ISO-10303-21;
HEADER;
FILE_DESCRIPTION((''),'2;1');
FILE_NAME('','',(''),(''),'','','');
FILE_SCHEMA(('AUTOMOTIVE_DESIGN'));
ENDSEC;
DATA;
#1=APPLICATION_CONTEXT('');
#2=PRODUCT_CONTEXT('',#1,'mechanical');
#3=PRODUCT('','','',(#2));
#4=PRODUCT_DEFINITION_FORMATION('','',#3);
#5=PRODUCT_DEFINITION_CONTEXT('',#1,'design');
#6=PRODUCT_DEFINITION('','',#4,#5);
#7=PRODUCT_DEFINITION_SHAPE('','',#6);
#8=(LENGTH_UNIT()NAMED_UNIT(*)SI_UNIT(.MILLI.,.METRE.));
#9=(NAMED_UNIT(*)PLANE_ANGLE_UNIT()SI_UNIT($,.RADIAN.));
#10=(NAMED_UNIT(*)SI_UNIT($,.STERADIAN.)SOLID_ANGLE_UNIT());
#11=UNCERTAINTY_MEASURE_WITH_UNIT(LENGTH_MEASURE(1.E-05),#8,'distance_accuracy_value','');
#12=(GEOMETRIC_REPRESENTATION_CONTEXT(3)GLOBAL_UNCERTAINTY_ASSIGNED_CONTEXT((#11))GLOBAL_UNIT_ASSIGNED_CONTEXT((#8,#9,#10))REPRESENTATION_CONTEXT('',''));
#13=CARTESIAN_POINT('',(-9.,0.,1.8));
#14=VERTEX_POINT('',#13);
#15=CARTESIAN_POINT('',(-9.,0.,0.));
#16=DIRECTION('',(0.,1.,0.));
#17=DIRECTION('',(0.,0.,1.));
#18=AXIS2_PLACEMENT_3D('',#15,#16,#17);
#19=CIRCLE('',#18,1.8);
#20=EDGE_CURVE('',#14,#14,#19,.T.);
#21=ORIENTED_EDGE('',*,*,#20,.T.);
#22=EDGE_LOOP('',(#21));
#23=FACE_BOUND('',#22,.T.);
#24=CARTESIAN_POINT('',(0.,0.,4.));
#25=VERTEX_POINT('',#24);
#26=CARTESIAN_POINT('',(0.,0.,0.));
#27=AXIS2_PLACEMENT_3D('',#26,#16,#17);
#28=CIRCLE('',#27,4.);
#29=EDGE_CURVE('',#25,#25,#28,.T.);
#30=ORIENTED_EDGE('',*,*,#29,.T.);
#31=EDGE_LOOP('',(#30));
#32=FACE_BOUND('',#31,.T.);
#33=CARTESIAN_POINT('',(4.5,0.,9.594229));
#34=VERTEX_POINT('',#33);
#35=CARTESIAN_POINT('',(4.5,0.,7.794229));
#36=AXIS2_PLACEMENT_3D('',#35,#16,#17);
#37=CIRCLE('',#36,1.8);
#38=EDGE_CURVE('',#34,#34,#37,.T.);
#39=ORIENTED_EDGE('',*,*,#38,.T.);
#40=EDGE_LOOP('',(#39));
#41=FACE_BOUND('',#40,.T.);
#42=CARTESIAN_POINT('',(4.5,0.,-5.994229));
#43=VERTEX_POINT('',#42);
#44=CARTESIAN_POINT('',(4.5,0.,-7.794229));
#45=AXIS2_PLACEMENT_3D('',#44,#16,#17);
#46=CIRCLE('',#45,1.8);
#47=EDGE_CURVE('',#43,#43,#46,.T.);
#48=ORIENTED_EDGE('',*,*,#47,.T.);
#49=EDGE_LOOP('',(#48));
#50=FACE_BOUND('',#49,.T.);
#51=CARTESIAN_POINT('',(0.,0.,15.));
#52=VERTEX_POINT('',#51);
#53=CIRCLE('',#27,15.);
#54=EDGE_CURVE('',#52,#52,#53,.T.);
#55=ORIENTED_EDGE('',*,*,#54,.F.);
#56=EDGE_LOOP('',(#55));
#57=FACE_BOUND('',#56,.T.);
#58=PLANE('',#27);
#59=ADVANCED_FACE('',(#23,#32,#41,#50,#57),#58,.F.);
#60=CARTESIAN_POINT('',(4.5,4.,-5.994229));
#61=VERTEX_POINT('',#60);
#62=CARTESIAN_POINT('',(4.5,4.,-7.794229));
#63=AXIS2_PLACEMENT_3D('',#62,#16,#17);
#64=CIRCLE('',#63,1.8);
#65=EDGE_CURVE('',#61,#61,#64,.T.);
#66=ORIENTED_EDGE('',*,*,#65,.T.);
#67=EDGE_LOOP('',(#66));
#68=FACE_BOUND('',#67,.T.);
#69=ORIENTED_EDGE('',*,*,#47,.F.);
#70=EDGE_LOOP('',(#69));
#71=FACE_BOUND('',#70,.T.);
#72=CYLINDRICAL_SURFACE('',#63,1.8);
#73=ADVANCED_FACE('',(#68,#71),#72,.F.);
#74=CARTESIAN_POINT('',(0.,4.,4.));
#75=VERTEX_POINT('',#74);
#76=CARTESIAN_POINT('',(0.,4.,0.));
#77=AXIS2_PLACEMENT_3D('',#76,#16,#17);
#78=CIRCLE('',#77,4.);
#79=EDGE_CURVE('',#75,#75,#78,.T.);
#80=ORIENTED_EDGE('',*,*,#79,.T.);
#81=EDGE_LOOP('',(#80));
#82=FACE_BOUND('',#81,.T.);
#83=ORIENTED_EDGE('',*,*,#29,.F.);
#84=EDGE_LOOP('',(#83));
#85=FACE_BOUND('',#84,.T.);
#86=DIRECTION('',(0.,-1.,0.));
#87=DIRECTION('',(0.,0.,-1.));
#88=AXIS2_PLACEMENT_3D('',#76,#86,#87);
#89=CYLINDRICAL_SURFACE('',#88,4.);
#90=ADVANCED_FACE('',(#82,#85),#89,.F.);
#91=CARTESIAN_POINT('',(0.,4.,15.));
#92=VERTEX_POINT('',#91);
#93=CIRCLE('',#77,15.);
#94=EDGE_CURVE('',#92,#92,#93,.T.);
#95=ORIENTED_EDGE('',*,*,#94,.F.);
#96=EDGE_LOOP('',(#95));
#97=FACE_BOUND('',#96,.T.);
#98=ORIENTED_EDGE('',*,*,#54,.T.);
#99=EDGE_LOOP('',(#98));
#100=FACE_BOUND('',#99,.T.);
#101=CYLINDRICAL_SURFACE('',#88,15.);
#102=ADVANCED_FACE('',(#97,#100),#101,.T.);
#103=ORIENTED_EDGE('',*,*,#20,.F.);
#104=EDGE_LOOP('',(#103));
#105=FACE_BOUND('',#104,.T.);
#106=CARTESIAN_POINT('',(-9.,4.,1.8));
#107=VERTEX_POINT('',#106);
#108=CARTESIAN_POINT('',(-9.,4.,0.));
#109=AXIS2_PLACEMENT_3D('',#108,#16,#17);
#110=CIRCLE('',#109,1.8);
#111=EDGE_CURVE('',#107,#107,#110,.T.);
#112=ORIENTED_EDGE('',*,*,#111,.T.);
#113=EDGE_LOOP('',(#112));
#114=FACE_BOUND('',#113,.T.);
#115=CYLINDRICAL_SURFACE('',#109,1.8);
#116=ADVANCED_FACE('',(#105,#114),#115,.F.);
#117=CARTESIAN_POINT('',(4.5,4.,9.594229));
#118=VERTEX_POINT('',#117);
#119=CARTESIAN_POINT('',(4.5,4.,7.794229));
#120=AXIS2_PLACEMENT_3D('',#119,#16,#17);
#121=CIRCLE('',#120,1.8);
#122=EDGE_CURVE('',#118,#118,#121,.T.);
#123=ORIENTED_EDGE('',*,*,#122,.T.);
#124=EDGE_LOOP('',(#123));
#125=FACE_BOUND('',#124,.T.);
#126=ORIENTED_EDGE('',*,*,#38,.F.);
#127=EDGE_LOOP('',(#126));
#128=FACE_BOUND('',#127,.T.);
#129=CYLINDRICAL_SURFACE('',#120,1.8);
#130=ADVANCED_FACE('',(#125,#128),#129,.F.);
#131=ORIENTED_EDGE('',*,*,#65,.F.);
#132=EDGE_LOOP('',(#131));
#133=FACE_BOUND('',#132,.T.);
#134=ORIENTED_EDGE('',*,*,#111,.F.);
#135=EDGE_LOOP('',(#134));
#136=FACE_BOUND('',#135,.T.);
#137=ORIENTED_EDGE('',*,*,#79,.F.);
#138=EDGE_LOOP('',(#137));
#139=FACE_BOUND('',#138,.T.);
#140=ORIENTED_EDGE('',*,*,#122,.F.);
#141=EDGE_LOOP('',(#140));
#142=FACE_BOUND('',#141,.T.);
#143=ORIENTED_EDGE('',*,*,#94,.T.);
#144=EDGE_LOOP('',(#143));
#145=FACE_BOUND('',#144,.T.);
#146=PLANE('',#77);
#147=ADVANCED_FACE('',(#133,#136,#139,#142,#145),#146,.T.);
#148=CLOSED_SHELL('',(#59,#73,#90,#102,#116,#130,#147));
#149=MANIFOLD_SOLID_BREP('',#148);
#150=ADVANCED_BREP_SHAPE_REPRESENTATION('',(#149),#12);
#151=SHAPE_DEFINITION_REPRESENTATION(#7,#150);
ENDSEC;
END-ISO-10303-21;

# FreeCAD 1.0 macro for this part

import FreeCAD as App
import Part
import Sketcher
from FreeCAD import Vector
Q = App.Units.Quantity

doc = App.newDocument("Part")
params = doc.addObject("Spreadsheet::Sheet", "Params")
for row, (alias, value) in enumerate([
    ("sketch1_diameter", "30 mm"),
    ("sketch1_diameter2", "8 mm"),
    ("pad1_length", "4 mm"),
    ("sketch2_diameter", "3.6 mm"),
    ("hole_diameter", "3.6 mm"),
    ("hole_depth", "5 mm"),
], start=1):
    params.set(f"A{row}", alias)
    params.set(f"B{row}", "=" + value)
    params.setAlias(f"B{row}", alias)

body = doc.addObject("PartDesign::Body", "Body")

# Sketch on XZ plane
sketch1 = doc.addObject("Sketcher::SketchObject", "Sketch")
body.addObject(sketch1)
sketch1.AttachmentSupport = (doc.XZ_Plane, [""])
sketch1.MapMode = "FlatFace"
sketch1.addGeometry([
    Part.Circle(Vector(0, 0, 0), Vector(0, 0, 1), 15),
    Part.Circle(Vector(0, 0, 0), Vector(0, 0, 1), 4),
], False)
sketch1.addConstraint([
    Sketcher.Constraint("Coincident", 0, 3, -1, 1),
    Sketcher.Constraint("Coincident", 1, 3, -1, 1),
    Sketcher.Constraint("Diameter", 0, Q("30 mm")),
    Sketcher.Constraint("Diameter", 1, Q("8 mm")),
])
sketch1.setExpression("Constraints[2]", "Params.sketch1_diameter")
sketch1.setExpression("Constraints[3]", "Params.sketch1_diameter2")
pad1 = doc.addObject("PartDesign::Pad", "Pad")
body.addObject(pad1)
pad1.Profile = sketch1
pad1.setExpression("Length", "Params.pad1_length")
pad1.Reversed = True

# Sketch on XZ plane
sketch2 = doc.addObject("Sketcher::SketchObject", "Sketch001")
body.addObject(sketch2)
sketch2.AttachmentSupport = (doc.XZ_Plane, [""])
sketch2.MapMode = "FlatFace"
sketch2.AttachmentOffset = App.Placement(Vector(0, 0, -4), App.Rotation())
sketch2.addGeometry([
    Part.Circle(Vector(4.5, 7.8, 0), Vector(0, 0, 1), 1.8),
    Part.Circle(Vector(-9, 0, 0), Vector(0, 0, 1), 1.8),
    Part.Circle(Vector(4.5, -7.8, 0), Vector(0, 0, 1), 1.8),
    Part.Circle(Vector(0, 0, 0), Vector(0, 0, 1), 1.8),
], False)
sketch2.addConstraint([
    Sketcher.Constraint("Coincident", 3, 3, -1, 1),
    Sketcher.Constraint("Equal", 0, 1),
    Sketcher.Constraint("Equal", 1, 2),
    Sketcher.Constraint("Equal", 2, 3),
    Sketcher.Constraint("Symmetric", 0, 3, 2, 3, -1),
    Sketcher.Constraint("PointOnObject", 1, 3, -1),
    Sketcher.Constraint("Diameter", 0, Q("3.6 mm")),
    Sketcher.Constraint("DistanceX", 1, 3, -1, 1, Q("9 mm")),
    Sketcher.Constraint("DistanceX", -1, 1, 0, 3, Q("4.5 mm")),
    Sketcher.Constraint("DistanceY", -1, 1, 0, 3, Q("7.794229 mm")),
])
sketch2.setExpression("Constraints[6]", "Params.sketch2_diameter")
doc.recompute()
hole = doc.addObject("PartDesign::Hole", "Hole")
body.addObject(hole)
hole.Profile = sketch2
hole.ThreadType = "None"
hole.setExpression("Diameter", "Params.hole_diameter")
hole.DepthType = "Dimension"
hole.setExpression("Depth", "Params.hole_depth")
hole.DrillPoint = "Angled"
hole.DrillPointAngle = 118
hole.Reversed = True

doc.recompute()
